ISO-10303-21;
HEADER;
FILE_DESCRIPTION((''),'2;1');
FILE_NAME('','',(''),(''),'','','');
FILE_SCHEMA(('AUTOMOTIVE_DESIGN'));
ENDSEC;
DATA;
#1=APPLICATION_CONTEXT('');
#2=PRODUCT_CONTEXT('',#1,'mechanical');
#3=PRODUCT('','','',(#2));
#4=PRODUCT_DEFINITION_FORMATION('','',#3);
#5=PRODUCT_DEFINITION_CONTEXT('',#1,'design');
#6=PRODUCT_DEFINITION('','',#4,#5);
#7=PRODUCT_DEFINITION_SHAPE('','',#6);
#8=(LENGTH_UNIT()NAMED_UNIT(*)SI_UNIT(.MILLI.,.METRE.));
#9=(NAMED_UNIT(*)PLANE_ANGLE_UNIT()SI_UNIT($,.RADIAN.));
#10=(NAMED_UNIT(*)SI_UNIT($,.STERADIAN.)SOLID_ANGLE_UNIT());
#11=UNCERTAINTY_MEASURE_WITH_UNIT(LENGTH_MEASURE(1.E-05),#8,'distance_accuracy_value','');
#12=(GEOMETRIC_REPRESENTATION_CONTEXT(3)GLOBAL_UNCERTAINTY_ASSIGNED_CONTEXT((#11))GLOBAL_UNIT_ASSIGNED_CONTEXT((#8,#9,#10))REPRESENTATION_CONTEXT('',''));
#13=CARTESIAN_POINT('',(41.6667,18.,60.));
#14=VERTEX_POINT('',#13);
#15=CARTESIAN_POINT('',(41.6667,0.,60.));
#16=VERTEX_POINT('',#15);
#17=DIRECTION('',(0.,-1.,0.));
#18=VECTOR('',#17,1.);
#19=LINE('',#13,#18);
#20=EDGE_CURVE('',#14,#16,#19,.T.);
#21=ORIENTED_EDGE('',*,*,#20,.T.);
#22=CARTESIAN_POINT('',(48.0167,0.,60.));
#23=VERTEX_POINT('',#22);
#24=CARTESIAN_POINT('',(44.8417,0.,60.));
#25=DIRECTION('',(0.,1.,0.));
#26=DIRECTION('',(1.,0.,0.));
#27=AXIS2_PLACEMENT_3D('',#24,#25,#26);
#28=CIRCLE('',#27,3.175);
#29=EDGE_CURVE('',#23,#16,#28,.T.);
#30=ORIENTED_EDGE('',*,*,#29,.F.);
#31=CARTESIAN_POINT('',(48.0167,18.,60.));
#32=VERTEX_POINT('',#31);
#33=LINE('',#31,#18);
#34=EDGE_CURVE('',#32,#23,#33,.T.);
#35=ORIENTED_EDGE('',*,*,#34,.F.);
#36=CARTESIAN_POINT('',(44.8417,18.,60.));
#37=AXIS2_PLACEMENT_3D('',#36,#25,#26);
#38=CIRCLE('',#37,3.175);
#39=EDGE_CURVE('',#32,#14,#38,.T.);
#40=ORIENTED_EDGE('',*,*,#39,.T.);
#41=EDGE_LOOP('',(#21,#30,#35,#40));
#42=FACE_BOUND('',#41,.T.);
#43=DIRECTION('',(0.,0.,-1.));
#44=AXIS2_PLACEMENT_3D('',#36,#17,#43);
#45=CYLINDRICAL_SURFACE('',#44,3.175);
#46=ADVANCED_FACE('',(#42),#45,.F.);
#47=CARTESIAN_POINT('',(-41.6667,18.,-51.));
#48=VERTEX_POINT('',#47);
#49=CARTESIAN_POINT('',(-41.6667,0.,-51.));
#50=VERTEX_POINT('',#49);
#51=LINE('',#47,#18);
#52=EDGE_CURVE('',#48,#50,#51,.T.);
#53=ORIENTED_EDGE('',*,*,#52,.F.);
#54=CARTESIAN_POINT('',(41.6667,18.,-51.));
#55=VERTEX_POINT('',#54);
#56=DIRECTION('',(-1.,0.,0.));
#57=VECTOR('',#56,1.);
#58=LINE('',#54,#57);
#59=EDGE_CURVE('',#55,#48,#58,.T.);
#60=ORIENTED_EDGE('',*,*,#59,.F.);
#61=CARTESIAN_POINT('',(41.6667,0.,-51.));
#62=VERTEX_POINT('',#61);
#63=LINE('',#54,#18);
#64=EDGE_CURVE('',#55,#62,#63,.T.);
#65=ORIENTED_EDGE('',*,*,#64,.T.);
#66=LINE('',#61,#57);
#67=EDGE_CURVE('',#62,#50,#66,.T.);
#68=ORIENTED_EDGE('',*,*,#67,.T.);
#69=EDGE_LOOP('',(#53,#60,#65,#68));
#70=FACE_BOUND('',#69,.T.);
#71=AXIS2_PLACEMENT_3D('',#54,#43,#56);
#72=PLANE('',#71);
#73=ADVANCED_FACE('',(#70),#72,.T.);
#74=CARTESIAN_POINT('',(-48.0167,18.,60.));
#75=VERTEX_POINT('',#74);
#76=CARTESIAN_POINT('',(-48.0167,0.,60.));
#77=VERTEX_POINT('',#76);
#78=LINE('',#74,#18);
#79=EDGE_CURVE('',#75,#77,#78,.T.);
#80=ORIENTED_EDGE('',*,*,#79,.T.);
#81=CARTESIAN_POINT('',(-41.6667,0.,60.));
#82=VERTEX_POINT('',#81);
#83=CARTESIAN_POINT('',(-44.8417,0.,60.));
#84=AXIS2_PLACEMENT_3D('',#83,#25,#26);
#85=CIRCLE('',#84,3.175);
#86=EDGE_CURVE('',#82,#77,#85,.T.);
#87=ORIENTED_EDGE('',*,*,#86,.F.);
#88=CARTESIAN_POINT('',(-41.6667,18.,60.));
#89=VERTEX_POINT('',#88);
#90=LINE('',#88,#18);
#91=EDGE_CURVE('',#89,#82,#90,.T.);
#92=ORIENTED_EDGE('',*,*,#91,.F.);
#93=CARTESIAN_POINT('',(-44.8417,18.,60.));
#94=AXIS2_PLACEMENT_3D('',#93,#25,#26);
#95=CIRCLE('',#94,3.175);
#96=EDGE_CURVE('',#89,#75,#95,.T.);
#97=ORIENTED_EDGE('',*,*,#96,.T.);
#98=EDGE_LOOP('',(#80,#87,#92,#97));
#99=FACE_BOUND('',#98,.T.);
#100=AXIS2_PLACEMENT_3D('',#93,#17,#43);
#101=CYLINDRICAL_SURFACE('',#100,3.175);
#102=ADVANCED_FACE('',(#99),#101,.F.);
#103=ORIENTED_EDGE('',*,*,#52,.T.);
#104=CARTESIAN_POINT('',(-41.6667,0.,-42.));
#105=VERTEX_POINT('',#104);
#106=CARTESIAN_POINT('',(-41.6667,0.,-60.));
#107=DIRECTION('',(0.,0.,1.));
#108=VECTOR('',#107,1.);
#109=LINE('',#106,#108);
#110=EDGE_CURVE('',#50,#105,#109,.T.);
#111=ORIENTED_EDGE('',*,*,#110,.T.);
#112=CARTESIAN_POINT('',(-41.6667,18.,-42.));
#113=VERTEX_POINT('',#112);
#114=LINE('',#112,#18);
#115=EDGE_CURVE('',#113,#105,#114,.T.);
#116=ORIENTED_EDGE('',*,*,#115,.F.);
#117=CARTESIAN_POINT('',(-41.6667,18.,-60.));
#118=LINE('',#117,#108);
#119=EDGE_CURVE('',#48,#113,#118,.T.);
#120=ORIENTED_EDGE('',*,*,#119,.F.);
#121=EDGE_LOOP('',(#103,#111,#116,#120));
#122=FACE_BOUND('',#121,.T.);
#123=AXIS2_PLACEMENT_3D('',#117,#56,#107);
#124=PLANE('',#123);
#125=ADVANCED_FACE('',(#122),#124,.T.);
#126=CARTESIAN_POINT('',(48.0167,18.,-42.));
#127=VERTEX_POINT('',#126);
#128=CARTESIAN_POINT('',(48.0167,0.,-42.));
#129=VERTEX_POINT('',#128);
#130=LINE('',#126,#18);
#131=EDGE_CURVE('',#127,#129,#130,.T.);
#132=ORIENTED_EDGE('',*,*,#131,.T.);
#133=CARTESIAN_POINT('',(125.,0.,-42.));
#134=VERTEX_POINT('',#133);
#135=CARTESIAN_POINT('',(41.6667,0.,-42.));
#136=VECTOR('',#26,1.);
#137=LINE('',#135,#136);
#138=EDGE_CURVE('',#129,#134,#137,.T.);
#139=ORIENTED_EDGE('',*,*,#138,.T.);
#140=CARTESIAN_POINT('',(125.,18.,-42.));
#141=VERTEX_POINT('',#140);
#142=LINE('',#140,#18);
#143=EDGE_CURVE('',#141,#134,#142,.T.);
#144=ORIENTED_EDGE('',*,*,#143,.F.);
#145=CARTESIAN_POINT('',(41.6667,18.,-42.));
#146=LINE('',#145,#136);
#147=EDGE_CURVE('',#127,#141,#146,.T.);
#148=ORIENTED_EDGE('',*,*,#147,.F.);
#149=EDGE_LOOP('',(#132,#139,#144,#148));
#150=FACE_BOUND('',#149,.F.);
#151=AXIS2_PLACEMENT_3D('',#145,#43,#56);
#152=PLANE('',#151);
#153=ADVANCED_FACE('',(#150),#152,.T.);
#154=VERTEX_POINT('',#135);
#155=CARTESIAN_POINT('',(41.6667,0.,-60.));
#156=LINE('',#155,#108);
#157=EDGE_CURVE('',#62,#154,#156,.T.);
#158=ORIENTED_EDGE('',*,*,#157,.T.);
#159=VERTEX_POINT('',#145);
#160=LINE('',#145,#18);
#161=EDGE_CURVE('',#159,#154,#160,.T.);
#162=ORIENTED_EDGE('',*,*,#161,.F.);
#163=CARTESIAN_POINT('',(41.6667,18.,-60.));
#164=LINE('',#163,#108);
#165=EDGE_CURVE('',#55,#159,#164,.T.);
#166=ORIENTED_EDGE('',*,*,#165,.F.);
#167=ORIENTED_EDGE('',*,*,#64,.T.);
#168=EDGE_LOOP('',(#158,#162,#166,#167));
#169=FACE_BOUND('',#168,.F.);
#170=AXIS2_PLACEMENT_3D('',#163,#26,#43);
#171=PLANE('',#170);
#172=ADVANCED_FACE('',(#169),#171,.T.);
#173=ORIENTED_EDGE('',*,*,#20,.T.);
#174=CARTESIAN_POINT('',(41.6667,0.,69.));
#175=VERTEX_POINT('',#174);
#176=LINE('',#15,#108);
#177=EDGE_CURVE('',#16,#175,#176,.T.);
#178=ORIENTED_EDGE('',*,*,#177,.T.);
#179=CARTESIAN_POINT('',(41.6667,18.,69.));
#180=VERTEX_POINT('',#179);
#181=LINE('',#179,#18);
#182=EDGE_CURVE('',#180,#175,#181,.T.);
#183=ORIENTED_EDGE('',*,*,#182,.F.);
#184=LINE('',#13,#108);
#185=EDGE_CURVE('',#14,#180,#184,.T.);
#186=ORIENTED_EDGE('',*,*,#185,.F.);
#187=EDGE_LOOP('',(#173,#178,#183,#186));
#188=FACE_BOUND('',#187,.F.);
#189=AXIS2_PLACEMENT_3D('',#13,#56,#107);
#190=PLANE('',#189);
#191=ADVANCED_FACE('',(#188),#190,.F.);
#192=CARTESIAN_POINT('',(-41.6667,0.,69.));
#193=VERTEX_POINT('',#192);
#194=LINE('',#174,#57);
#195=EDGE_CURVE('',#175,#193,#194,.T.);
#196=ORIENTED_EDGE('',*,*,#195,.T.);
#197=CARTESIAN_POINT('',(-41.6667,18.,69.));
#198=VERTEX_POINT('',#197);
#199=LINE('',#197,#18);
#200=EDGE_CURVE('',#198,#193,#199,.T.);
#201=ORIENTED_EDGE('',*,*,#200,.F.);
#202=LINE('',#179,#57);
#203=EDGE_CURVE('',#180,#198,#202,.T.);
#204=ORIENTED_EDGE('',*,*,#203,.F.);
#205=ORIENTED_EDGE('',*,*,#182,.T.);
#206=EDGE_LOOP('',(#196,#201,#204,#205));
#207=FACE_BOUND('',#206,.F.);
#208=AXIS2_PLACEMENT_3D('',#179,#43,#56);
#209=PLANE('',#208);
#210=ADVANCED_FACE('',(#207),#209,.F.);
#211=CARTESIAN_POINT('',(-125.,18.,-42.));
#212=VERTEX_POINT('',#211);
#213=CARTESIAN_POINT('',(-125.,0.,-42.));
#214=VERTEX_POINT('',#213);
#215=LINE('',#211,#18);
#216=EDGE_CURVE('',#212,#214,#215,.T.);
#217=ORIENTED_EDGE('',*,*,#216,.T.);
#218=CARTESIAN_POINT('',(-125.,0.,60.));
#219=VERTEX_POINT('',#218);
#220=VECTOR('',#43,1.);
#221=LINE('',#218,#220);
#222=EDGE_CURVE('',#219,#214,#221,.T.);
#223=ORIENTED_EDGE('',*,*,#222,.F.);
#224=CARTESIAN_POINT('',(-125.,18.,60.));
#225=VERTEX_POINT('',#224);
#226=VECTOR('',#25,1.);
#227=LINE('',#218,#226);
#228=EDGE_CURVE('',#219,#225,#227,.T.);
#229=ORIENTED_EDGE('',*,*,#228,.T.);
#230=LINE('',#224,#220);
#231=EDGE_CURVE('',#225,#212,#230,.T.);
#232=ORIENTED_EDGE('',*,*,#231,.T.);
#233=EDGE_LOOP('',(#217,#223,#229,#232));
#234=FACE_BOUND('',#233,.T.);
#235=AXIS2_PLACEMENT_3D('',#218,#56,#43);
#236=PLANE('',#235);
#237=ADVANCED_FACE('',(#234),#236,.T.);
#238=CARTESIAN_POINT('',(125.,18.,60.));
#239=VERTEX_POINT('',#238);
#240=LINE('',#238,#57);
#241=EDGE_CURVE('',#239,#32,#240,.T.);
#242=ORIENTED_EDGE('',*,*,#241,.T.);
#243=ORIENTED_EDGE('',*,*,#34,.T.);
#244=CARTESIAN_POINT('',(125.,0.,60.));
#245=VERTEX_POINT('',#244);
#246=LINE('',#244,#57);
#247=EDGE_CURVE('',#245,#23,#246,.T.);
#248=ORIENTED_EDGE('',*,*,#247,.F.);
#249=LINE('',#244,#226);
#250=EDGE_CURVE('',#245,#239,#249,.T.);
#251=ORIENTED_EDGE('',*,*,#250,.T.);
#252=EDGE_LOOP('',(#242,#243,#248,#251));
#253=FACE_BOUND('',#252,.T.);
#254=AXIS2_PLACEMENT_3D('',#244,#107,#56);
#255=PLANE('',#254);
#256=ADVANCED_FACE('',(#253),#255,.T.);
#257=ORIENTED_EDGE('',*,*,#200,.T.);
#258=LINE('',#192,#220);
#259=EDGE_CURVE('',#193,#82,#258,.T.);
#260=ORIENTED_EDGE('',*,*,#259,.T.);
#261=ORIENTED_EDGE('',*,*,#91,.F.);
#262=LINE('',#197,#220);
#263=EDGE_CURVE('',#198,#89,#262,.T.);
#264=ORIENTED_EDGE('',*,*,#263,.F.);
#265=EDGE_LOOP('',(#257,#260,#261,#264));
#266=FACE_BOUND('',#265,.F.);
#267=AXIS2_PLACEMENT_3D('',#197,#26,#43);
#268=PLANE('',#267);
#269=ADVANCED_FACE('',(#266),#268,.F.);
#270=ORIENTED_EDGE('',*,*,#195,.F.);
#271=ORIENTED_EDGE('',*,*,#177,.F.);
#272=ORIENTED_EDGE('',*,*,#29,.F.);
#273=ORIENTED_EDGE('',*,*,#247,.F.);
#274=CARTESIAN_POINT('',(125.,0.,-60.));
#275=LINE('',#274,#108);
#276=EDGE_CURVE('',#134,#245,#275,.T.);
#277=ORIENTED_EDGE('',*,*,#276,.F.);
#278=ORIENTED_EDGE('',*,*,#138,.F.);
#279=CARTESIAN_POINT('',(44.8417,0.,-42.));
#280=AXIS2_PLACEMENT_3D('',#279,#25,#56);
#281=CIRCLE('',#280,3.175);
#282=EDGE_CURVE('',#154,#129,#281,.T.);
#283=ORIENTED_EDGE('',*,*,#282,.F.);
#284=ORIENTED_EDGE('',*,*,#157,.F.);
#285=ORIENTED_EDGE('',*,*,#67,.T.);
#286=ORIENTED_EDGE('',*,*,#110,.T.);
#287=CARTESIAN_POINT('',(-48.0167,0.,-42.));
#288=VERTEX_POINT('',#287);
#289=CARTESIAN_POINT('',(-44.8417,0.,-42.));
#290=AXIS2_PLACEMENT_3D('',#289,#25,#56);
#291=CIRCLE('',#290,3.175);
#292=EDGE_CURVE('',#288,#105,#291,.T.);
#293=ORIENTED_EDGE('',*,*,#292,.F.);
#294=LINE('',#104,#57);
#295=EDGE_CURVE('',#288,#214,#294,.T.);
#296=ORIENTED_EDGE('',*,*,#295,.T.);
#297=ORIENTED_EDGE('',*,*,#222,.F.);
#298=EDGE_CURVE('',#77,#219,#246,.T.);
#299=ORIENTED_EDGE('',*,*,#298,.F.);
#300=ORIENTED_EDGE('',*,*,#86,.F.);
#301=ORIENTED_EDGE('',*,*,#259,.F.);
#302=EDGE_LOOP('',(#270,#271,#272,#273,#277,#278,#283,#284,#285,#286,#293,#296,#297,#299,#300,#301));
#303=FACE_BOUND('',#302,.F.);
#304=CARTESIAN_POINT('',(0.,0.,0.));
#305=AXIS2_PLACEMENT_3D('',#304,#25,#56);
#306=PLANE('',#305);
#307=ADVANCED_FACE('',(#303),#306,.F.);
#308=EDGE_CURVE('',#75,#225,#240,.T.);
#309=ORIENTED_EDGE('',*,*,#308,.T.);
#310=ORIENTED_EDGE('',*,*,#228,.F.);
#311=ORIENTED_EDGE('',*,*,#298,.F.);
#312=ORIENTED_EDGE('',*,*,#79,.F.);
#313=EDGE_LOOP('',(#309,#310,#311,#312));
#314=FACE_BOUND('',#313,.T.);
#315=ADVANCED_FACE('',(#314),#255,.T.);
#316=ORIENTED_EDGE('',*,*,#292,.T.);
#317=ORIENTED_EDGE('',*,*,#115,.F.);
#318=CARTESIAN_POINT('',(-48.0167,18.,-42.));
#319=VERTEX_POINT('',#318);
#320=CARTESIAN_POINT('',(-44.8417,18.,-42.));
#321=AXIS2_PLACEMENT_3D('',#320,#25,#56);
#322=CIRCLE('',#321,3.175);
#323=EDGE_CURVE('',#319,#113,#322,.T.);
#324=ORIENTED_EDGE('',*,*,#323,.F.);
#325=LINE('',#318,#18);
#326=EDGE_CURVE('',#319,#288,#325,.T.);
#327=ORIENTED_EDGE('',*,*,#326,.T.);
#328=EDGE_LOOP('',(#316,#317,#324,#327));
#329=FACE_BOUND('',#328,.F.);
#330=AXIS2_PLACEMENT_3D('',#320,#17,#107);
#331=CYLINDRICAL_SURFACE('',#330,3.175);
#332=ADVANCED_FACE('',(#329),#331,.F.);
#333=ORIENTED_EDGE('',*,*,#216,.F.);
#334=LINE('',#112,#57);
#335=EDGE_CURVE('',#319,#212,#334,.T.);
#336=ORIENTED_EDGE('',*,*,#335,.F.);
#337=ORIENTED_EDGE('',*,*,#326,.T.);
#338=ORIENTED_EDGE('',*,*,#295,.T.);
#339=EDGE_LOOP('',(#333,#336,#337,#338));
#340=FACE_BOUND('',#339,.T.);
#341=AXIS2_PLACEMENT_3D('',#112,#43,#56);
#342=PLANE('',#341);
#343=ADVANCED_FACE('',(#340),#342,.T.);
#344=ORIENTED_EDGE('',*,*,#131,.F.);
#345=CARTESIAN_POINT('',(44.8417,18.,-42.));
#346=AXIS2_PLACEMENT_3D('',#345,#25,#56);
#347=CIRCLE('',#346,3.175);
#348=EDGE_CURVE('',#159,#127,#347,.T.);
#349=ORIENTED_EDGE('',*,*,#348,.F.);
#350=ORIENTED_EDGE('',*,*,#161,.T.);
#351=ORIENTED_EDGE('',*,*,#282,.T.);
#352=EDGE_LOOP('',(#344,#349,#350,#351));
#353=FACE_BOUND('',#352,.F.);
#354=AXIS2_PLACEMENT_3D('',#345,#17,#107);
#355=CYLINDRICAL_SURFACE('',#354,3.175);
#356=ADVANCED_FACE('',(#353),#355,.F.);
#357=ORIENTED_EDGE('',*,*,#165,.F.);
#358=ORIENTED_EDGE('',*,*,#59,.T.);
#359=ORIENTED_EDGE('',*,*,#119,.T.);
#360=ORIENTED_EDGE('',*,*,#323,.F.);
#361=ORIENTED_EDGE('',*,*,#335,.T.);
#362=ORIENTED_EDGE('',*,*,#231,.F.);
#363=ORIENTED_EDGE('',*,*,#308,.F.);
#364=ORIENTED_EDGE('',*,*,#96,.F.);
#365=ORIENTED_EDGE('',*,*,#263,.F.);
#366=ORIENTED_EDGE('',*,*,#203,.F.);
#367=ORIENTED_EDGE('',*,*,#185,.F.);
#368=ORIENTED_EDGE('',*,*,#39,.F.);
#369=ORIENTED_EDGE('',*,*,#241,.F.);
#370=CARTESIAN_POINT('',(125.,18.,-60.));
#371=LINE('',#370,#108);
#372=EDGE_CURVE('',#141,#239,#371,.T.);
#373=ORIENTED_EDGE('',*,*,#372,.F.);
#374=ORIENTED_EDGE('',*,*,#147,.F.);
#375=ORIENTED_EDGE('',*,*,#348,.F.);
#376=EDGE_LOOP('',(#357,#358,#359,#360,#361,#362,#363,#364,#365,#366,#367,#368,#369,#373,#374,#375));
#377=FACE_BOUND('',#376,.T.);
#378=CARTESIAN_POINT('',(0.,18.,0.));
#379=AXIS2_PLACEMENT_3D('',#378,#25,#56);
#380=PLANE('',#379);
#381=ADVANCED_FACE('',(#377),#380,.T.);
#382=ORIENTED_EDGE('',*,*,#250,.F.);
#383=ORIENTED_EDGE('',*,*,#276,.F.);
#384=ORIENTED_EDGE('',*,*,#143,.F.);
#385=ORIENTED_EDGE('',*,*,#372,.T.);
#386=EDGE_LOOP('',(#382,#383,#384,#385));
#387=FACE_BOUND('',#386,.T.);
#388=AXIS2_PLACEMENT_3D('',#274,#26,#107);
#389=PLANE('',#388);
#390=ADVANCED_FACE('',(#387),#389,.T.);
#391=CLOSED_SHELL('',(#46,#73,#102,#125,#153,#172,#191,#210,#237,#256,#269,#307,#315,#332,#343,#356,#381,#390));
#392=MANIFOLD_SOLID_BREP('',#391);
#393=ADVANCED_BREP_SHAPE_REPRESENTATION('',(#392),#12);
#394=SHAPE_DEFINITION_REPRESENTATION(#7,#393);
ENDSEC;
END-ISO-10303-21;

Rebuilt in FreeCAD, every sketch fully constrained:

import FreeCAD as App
import Part
import Sketcher
Q = App.Units.Quantity


def add_polygon(sketch, points):
    """Adds a closed chain of lines whose ends are joined by coincident constraints."""
    first, n = sketch.GeometryCount, len(points)
    for a, b in zip(points, points[1:] + points[:1]):
        sketch.addGeometry(Part.LineSegment(App.Vector(*a, 0), App.Vector(*b, 0)), False)
    for i in range(n):
        sketch.addConstraint(Sketcher.Constraint("Coincident", first + i, 2, first + (i + 1) % n, 1))

doc = App.newDocument("Part")
body = doc.addObject("PartDesign::Body", "Body")

sketch1 = doc.addObject("Sketcher::SketchObject", "Sketch")
body.addObject(sketch1)
sketch1.AttachmentSupport = (doc.XZ_Plane, [""])
sketch1.MapMode = "FlatFace"
add_polygon(sketch1, [(125, -60), (-125, -60), (-125, 60), (125, 60)])
sketch1.addConstraint([
    Sketcher.Constraint("Horizontal", 0),
    Sketcher.Constraint("Vertical", 1),
    Sketcher.Constraint("Horizontal", 2),
    Sketcher.Constraint("Vertical", 3),
    Sketcher.Constraint("Symmetric", 0, 2, 2, 2, -1, 1),
    Sketcher.Constraint("DistanceX", 0, 2, 0, 1, Q("250 mm")),
    Sketcher.Constraint("DistanceY", 1, 1, 1, 2, Q("120 mm")),
])
pad1 = doc.addObject("PartDesign::Pad", "Pad")
body.addObject(pad1)
pad1.Profile = sketch1
pad1.Length = 18
pad1.Reversed = True

sketch2 = doc.addObject("Sketcher::SketchObject", "Sketch001")
body.addObject(sketch2)
sketch2.AttachmentSupport = (doc.XZ_Plane, [""])
sketch2.MapMode = "FlatFace"
sketch2.AttachmentOffset = App.Placement(App.Vector(0, 0, -18), App.Rotation())
add_polygon(sketch2, [(-42, -60), (-125, -60), (-125, -42), (-42, -42)])
sketch2.addConstraint([
    Sketcher.Constraint("Horizontal", 0),
    Sketcher.Constraint("Vertical", 1),
    Sketcher.Constraint("Horizontal", 2),
    Sketcher.Constraint("Vertical", 3),
    Sketcher.Constraint("DistanceY", 1, 1, 1, 2, Q("18 mm")),
    Sketcher.Constraint("DistanceX", 0, 2, 0, 1, Q("83.3333 mm")),
    Sketcher.Constraint("DistanceX", 0, 2, -1, 1, Q("125 mm")),
    Sketcher.Constraint("DistanceY", 0, 2, -1, 1, Q("60 mm")),
])
pocket1 = doc.addObject("PartDesign::Pocket", "Pocket")
body.addObject(pocket1)
pocket1.Profile = sketch2
pocket1.Length = 18
pocket1.Reversed = True
doc.recompute()

mirrored = doc.addObject("PartDesign::Mirrored", "Mirrored")
body.addObject(mirrored)
mirrored.Originals = [pocket1]
mirrored.MirrorPlane = (doc.YZ_Plane, [""])
body.Tip = mirrored

sketch3 = doc.addObject("Sketcher::SketchObject", "Sketch002")
body.addObject(sketch3)
sketch3.AttachmentSupport = (doc.XZ_Plane, [""])
sketch3.MapMode = "FlatFace"
sketch3.AttachmentOffset = App.Placement(App.Vector(0, 0, -18), App.Rotation())
add_polygon(sketch3, [(42, -60), (-42, -60), (-42, -51), (42, -51)])
sketch3.addConstraint([
    Sketcher.Constraint("Horizontal", 0),
    Sketcher.Constraint("Vertical", 1),
    Sketcher.Constraint("Horizontal", 2),
    Sketcher.Constraint("Vertical", 3),
    Sketcher.Constraint("DistanceY", 1, 1, 1, 2, Q("9 mm")),
    Sketcher.Constraint("DistanceY", 0, 2, -1, 1, Q("60 mm")),
    Sketcher.Constraint("DistanceX", 0, 2, 0, 1, Q("83.3334 mm")),
    Sketcher.Constraint("DistanceX", 0, 2, -1, 1, Q("41.6667 mm")),
])
pocket2 = doc.addObject("PartDesign::Pocket", "Pocket001")
body.addObject(pocket2)
pocket2.Profile = sketch3
pocket2.Length = 18
pocket2.Reversed = True

sketch4 = doc.addObject("Sketcher::SketchObject", "Sketch003")
body.addObject(sketch4)
sketch4.AttachmentSupport = (doc.XZ_Plane, [""])
sketch4.MapMode = "FlatFace"
sketch4.AttachmentOffset = App.Placement(App.Vector(0, 0, -18), App.Rotation())
add_polygon(sketch4, [(42, 60), (-42, 60), (-42, 69), (42, 69)])
sketch4.addConstraint([
    Sketcher.Constraint("Horizontal", 0),
    Sketcher.Constraint("Vertical", 1),
    Sketcher.Constraint("Horizontal", 2),
    Sketcher.Constraint("Vertical", 3),
    Sketcher.Constraint("DistanceY", 1, 1, 1, 2, Q("9 mm")),
    Sketcher.Constraint("DistanceX", 0, 2, 0, 1, Q("83.3334 mm")),
    Sketcher.Constraint("DistanceY", -1, 1, 0, 2, Q("60 mm")),
    Sketcher.Constraint("DistanceX", 0, 2, -1, 1, Q("41.6667 mm")),
])
pad2 = doc.addObject("PartDesign::Pad", "Pad001")
body.addObject(pad2)
pad2.Profile = sketch4
pad2.Length = 18

sketch5 = doc.addObject("Sketcher::SketchObject", "Sketch004")
body.addObject(sketch5)
sketch5.AttachmentSupport = (doc.XZ_Plane, [""])
sketch5.MapMode = "FlatFace"
sketch5.AttachmentOffset = App.Placement(App.Vector(0, 0, -18), App.Rotation())
sketch5.addGeometry([
    Part.Circle(App.Vector(-44.8, -42, 0), App.Vector(0, 0, 1), 3.2),
    Part.Circle(App.Vector(44.8, -42, 0), App.Vector(0, 0, 1), 3.2),
], False)
sketch5.addConstraint([
    Sketcher.Constraint("Equal", 0, 1),
    Sketcher.Constraint("Symmetric", 0, 3, 1, 3, -2),
    Sketcher.Constraint("Diameter", 0, Q("6.35 mm")),
    Sketcher.Constraint("DistanceY", 0, 3, -1, 1, Q("42 mm")),
    Sketcher.Constraint("DistanceX", 0, 3, -1, 1, Q("44.8417 mm")),
])
doc.recompute()
hole = doc.addObject("PartDesign::Hole", "Hole")
body.addObject(hole)
hole.Profile = sketch5
hole.ThreadType = "None"
hole.Diameter = 6.35
hole.DepthType = "ThroughAll"
hole.Reversed = True
doc.recompute()

datumplane = doc.addObject("PartDesign::Plane", "DatumPlane")
body.addObject(datumplane)
datumplane.AttachmentSupport = (doc.XY_Plane, [""])
datumplane.MapMode = "FlatFace"
datumplane.AttachmentOffset = App.Placement(App.Vector(0, 0, 9), App.Rotation())
mirrored2 = doc.addObject("PartDesign::Mirrored", "Mirrored001")
body.addObject(mirrored2)
mirrored2.Originals = [hole]
mirrored2.MirrorPlane = (datumplane, [""])
body.Tip = mirrored2

doc.recompute()
